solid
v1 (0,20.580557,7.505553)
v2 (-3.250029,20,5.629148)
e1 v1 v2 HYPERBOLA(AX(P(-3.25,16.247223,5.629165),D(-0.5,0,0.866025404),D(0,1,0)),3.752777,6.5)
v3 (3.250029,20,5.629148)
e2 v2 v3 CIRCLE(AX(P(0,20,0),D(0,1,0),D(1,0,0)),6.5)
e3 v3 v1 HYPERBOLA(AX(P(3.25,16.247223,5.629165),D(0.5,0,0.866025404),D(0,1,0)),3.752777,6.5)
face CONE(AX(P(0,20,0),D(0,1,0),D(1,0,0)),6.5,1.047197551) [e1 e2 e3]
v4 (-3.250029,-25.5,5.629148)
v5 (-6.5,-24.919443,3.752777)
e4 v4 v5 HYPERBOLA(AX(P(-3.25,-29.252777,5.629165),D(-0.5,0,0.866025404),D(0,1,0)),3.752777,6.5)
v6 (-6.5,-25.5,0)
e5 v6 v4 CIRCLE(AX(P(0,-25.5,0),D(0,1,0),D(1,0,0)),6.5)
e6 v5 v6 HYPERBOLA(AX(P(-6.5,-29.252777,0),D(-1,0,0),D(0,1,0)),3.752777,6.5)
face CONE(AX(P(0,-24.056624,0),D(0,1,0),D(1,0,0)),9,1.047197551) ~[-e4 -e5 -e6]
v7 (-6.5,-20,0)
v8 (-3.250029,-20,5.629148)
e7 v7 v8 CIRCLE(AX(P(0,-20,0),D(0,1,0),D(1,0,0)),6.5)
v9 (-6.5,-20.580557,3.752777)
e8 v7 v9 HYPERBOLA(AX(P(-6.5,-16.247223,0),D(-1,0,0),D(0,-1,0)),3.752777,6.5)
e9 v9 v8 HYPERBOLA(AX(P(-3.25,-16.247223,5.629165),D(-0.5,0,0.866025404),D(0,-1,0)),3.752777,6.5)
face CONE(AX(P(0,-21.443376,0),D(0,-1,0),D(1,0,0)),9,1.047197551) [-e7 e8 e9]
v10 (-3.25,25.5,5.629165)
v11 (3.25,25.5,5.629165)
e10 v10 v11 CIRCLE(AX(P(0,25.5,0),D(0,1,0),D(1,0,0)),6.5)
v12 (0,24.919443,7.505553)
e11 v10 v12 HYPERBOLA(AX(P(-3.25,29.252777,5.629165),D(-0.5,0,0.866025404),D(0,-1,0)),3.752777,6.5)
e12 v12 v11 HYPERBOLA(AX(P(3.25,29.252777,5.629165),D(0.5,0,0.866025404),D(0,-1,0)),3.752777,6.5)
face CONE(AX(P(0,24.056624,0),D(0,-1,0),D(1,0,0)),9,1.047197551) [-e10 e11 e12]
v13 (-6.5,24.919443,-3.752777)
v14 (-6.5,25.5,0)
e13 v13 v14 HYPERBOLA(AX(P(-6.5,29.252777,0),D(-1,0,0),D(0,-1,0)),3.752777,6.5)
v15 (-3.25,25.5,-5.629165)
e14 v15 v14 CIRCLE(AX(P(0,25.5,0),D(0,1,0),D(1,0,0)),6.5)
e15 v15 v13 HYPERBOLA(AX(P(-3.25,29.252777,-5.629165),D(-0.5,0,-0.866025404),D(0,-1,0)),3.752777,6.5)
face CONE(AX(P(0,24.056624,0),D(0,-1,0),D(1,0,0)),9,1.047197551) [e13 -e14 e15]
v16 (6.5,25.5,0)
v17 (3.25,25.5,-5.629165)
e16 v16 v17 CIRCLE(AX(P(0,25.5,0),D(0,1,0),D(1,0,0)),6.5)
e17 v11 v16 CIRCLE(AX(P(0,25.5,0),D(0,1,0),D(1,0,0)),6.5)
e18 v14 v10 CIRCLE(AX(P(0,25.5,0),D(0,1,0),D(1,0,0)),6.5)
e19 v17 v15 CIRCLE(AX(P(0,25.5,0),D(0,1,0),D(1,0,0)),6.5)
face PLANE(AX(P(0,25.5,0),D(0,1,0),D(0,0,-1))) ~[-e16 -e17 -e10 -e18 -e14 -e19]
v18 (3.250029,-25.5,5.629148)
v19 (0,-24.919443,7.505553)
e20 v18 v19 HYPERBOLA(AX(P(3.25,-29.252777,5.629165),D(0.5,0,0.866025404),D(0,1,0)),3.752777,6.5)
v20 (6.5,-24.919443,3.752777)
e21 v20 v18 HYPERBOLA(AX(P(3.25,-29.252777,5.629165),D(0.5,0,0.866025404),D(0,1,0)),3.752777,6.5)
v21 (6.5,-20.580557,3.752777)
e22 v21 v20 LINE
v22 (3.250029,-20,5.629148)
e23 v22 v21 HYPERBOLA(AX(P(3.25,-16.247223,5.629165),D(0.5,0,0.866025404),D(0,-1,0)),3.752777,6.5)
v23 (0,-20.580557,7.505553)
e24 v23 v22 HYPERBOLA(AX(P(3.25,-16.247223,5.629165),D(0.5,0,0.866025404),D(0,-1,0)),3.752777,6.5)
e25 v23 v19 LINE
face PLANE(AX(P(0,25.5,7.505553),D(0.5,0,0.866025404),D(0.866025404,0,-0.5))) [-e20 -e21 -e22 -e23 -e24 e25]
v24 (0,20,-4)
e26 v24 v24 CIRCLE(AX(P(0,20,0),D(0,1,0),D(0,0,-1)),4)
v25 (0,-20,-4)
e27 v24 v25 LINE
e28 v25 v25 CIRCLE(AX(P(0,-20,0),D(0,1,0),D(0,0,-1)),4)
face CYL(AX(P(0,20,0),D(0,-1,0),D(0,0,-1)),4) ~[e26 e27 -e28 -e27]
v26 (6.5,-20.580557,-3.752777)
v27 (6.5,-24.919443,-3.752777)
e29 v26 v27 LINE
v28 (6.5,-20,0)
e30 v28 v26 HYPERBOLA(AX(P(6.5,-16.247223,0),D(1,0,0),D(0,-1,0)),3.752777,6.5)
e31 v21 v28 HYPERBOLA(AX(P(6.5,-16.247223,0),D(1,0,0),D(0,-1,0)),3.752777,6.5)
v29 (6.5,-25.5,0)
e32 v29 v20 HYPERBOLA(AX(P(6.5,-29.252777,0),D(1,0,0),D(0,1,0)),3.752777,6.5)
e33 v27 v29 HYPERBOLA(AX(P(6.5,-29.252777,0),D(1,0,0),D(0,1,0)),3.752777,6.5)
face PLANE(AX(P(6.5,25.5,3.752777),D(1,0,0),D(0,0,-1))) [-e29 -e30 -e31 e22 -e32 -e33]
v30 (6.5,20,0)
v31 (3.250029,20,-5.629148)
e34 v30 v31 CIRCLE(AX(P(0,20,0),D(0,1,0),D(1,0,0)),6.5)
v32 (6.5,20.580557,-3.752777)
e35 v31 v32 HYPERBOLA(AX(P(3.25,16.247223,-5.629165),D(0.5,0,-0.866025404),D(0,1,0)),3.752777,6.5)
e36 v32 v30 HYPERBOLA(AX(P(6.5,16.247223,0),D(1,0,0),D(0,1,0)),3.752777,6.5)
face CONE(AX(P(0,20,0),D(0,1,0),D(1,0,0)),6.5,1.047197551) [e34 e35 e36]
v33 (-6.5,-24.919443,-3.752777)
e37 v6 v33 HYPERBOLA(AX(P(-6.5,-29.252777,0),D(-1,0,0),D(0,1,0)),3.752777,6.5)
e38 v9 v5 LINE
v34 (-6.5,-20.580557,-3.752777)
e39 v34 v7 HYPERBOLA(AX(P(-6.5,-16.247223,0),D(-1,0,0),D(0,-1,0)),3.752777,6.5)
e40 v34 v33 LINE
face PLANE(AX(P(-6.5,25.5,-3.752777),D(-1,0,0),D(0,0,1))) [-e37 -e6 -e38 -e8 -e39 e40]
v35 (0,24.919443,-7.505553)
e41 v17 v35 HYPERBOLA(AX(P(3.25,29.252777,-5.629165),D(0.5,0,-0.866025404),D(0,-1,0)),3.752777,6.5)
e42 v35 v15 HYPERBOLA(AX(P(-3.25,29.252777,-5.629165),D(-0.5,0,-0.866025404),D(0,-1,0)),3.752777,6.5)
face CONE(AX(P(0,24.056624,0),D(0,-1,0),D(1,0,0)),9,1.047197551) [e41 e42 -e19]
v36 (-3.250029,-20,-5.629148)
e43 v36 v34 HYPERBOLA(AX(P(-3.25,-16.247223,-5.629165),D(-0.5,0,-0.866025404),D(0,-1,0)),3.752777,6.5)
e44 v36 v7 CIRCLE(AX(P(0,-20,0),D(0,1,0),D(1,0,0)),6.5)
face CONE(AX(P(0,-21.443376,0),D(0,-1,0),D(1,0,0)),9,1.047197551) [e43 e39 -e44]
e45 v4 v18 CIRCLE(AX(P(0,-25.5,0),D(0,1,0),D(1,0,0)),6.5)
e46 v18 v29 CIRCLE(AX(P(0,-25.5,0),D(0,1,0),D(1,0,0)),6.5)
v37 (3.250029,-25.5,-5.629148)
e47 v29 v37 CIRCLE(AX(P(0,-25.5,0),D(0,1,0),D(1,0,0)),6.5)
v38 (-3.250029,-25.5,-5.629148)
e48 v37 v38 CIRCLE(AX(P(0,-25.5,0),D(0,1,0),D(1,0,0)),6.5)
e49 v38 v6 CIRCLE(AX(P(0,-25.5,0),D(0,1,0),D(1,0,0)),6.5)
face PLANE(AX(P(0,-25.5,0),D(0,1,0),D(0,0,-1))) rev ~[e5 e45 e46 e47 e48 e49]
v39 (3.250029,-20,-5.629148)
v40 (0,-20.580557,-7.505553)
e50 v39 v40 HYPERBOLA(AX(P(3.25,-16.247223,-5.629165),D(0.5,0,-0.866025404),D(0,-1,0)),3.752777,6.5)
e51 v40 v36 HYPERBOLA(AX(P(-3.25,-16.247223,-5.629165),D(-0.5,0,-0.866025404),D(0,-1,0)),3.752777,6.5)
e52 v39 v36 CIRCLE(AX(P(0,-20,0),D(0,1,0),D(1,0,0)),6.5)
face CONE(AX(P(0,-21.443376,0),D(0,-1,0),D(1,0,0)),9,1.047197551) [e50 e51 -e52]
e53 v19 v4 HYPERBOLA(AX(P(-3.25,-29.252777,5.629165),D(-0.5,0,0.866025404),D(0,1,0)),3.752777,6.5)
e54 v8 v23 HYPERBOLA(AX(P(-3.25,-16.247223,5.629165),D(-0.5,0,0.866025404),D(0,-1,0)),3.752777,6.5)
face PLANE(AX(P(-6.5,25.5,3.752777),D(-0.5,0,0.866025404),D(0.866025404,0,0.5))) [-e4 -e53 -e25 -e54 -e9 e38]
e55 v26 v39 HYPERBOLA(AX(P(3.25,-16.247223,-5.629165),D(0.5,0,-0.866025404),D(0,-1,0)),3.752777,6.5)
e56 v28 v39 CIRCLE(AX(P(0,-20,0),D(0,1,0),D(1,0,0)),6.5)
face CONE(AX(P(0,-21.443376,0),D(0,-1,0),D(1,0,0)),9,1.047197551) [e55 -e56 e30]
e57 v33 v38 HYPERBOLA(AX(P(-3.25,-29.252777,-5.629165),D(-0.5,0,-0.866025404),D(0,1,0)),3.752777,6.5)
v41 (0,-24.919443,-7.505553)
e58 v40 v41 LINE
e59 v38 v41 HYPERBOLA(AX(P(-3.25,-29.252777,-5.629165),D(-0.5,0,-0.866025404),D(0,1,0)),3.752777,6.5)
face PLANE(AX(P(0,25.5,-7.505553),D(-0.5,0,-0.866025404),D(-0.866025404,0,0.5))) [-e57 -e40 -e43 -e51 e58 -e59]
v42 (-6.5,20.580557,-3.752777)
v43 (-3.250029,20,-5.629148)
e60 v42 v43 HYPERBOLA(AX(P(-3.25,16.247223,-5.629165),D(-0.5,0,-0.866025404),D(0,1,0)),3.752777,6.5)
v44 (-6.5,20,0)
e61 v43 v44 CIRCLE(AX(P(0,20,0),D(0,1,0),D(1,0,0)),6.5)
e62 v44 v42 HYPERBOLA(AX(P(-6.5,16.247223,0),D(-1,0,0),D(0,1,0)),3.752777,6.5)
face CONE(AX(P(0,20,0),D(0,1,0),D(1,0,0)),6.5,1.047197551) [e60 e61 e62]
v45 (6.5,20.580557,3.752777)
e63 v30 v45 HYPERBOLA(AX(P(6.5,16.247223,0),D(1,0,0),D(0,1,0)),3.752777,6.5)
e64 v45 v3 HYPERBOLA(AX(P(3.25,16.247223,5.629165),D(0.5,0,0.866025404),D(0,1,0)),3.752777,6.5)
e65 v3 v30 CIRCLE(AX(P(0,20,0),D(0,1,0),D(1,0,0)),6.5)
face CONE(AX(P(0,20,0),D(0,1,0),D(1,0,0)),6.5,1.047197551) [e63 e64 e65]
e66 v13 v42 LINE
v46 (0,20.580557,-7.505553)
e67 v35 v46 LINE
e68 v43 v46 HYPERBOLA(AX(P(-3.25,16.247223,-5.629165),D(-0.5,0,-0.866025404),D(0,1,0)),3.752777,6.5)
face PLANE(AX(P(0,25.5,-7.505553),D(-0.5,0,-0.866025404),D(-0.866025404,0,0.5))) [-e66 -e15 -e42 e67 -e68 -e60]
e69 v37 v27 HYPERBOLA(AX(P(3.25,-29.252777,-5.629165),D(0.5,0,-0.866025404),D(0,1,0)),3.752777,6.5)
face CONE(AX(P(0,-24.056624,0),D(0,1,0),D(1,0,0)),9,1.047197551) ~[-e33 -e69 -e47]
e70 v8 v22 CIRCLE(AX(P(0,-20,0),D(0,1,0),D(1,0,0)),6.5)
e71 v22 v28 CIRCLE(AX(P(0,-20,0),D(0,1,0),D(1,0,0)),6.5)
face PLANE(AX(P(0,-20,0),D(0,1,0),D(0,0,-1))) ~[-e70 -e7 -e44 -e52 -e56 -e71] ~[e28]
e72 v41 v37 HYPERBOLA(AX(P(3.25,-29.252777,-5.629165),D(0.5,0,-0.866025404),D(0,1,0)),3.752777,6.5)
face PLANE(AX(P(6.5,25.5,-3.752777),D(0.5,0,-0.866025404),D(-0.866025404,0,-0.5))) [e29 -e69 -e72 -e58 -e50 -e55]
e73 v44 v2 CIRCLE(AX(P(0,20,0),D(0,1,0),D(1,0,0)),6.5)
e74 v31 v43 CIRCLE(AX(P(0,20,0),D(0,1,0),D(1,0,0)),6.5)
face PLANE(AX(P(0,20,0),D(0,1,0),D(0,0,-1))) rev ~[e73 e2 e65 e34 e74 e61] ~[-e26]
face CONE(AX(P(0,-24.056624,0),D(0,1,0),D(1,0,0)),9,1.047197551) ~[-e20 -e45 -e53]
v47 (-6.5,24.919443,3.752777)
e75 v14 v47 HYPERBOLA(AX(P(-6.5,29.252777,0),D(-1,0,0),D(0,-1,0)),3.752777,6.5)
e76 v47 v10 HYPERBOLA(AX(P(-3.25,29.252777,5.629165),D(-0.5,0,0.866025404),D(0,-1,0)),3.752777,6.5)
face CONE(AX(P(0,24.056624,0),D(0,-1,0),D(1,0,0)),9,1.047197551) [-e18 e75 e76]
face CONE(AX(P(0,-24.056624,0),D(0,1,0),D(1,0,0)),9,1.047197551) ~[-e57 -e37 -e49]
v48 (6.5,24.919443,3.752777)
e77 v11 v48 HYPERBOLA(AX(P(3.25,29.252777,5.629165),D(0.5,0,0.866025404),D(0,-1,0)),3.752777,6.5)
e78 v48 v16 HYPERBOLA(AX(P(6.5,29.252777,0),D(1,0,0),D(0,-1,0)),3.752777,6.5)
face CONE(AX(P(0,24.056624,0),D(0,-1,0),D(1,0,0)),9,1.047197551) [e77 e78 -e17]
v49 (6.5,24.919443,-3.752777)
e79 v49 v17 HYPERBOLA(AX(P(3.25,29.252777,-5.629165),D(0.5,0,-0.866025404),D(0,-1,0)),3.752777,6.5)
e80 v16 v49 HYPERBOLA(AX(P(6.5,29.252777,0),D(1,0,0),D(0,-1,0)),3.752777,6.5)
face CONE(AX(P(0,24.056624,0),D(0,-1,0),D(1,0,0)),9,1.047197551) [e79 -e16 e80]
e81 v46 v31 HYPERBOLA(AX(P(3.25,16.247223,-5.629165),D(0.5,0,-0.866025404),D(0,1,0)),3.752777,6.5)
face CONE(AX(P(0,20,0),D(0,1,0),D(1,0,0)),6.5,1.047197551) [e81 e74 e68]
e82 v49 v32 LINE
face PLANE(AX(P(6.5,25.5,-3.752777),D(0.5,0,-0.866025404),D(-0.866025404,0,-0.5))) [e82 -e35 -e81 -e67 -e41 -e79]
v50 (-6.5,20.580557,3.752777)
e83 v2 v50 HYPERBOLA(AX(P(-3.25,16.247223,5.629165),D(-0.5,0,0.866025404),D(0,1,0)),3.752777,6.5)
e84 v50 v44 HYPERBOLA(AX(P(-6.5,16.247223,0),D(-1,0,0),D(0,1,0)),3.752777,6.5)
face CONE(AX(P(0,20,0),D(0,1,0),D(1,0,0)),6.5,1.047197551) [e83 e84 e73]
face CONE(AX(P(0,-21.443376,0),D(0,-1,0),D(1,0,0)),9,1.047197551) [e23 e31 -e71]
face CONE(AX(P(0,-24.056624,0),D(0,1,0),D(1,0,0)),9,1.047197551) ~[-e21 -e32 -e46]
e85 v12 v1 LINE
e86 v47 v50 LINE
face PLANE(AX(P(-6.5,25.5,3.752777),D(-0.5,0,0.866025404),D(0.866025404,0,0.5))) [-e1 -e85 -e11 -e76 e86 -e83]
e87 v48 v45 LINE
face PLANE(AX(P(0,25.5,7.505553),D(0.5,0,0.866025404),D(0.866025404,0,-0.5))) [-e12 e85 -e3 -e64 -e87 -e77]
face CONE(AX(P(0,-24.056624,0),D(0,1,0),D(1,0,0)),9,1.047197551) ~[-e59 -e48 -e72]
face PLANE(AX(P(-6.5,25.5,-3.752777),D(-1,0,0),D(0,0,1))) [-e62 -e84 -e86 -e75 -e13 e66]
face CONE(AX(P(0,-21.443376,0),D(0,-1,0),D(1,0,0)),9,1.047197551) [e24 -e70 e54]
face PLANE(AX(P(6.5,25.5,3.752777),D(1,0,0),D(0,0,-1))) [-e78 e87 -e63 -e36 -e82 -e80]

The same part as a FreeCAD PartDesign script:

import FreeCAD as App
import Part
import Sketcher
Q = App.Units.Quantity

doc = App.newDocument("Part")
params = doc.addObject("Spreadsheet::Sheet", "Params")
for row, (alias, value) in enumerate([
    ("sketch1_width", "10 mm"),
    ("sketch1_width2", "6 mm"),
    ("sketch1_height", "51 mm"),
    ("sketch1_height2", "40 mm"),
    ("revolution_angle", "360 deg"),
    ("sketch2_diameter", "25 mm"),
    ("sketch3_width", "2.5 mm"),
    ("groove_angle", "360 deg"),
], start=1):
    params.set(f"A{row}", alias)
    params.set(f"B{row}", "=" + value)
    params.setAlias(f"B{row}", alias)

body = doc.addObject("PartDesign::Body", "Body")

# Sketch on XY plane
sketch1 = body.newObject("Sketcher::SketchObject", "Sketch")
sketch1.AttachmentSupport = (doc.getObject("XY_Plane"), [""])
sketch1.MapMode = "FlatFace"
sketch1.addGeometry([
    Part.LineSegment(App.Vector(10, 26, 0), App.Vector(0, 26, 0)),  # 0
    Part.LineSegment(App.Vector(0, 26, 0), App.Vector(0, -26, 0)),  # 1
    Part.LineSegment(App.Vector(0, -26, 0), App.Vector(10, -26, 0)),  # 2
    Part.LineSegment(App.Vector(10, -26, 0), App.Vector(10, -20, 0)),  # 3
    Part.LineSegment(App.Vector(10, -20, 0), App.Vector(4, -20, 0)),  # 4
    Part.LineSegment(App.Vector(4, -20, 0), App.Vector(4, 20, 0)),  # 5
    Part.LineSegment(App.Vector(4, 20, 0), App.Vector(10, 20, 0)),  # 6
    Part.LineSegment(App.Vector(10, 20, 0), App.Vector(10, 26, 0)),  # 7
], False)
sketch1.addConstraint([
    Sketcher.Constraint("Coincident", 0, 2, 1, 1),
    Sketcher.Constraint("Coincident", 1, 2, 2, 1),
    Sketcher.Constraint("Coincident", 2, 2, 3, 1),
    Sketcher.Constraint("Coincident", 3, 2, 4, 1),
    Sketcher.Constraint("Coincident", 4, 2, 5, 1),
    Sketcher.Constraint("Coincident", 5, 2, 6, 1),
    Sketcher.Constraint("Coincident", 6, 2, 7, 1),
    Sketcher.Constraint("Coincident", 7, 2, 0, 1),
    Sketcher.Constraint("Horizontal", 0),
    Sketcher.Constraint("Vertical", 1),
    Sketcher.Constraint("Horizontal", 2),
    Sketcher.Constraint("Vertical", 3),
    Sketcher.Constraint("Horizontal", 4),
    Sketcher.Constraint("Vertical", 5),
    Sketcher.Constraint("Horizontal", 6),
    Sketcher.Constraint("Vertical", 7),
    Sketcher.Constraint("Symmetric", 0, 2, 1, 2, -1, 1),
    Sketcher.Constraint("Symmetric", 3, 2, 6, 2, -1),
    Sketcher.Constraint("DistanceX", 0, 2, 0, 1, 10.0),
    Sketcher.Constraint("DistanceX", 4, 2, 4, 1, 6.0),
    Sketcher.Constraint("DistanceY", 1, 2, 1, 1, 51.0),
    Sketcher.Constraint("DistanceY", 5, 1, 5, 2, 40.0),
])
sketch1.setExpression("Constraints[18]", "Params.sketch1_width")
sketch1.setExpression("Constraints[19]", "Params.sketch1_width2")
sketch1.setExpression("Constraints[20]", "Params.sketch1_height")
sketch1.setExpression("Constraints[21]", "Params.sketch1_height2")
revolution = body.newObject("PartDesign::Revolution", "Revolution")
revolution.Profile = sketch1
revolution.ReferenceAxis = (sketch1, ["V_Axis"])
revolution.setExpression("Angle", "Params.revolution_angle")

# Sketch on XZ plane
sketch2 = body.newObject("Sketcher::SketchObject", "Sketch001")
sketch2.AttachmentSupport = (doc.getObject("XZ_Plane"), [""])
sketch2.MapMode = "FlatFace"
sketch2.AttachmentOffset = App.Placement(App.Vector(0, 0, -25.5), App.Rotation())
sketch2.addGeometry([
    Part.Circle(App.Vector(0, 0, 0), App.Vector(0, 0, 1), 12),  # 0
    Part.LineSegment(App.Vector(-6, -4, 0), App.Vector(0, -8, 0)),  # 1
    Part.LineSegment(App.Vector(0, -8, 0), App.Vector(6, -4, 0)),  # 2
    Part.LineSegment(App.Vector(6, -4, 0), App.Vector(6, 4, 0)),  # 3
    Part.LineSegment(App.Vector(6, 4, 0), App.Vector(0, 8, 0)),  # 4
    Part.LineSegment(App.Vector(0, 8, 0), App.Vector(-6, 4, 0)),  # 5
    Part.LineSegment(App.Vector(-6, 4, 0), App.Vector(-6, -4, 0)),  # 6
], False)
sketch2.addConstraint([
    Sketcher.Constraint("Coincident", 1, 2, 2, 1),
    Sketcher.Constraint("Coincident", 2, 2, 3, 1),
    Sketcher.Constraint("Coincident", 3, 2, 4, 1),
    Sketcher.Constraint("Coincident", 4, 2, 5, 1),
    Sketcher.Constraint("Coincident", 5, 2, 6, 1),
    Sketcher.Constraint("Coincident", 6, 2, 1, 1),
    Sketcher.Constraint("Vertical", 3),
    Sketcher.Constraint("Vertical", 6),
    Sketcher.Constraint("Coincident", 0, 3, -1, 1),
    Sketcher.Constraint("Symmetric", 1, 2, 4, 2, -1, 1),
    Sketcher.Constraint("Symmetric", 2, 2, 5, 2, -1, 1),
    Sketcher.Constraint("PointOnObject", 1, 2, -2),
    Sketcher.Constraint("Parallel", 1, 4),
    Sketcher.Constraint("Horizontal", 3, 2, 5, 2),
    Sketcher.Constraint("Diameter", 0, 25.0),
    Sketcher.Constraint("Angle", 1, Q("-30 deg")),
    Sketcher.Constraint("DistanceX", 5, 2, 3, 2, 13.0),
    Sketcher.Constraint("DistanceY", 3, 1, 3, 2, 7.505554),
])
sketch2.setExpression("Constraints[14]", "Params.sketch2_diameter")
pocket1 = body.newObject("PartDesign::Pocket", "Pocket")
pocket1.Profile = sketch2
pocket1.Type = "ThroughAll"
pocket1.Reversed = True

# Sketch on XY plane
sketch3 = body.newObject("Sketcher::SketchObject", "Sketch002")
sketch3.AttachmentSupport = (doc.getObject("XY_Plane"), [""])
sketch3.MapMode = "FlatFace"
sketch3.addGeometry([
    Part.LineSegment(App.Vector(9, 25.5, 0), App.Vector(6.5, 25.5, 0)),  # 0
    Part.LineSegment(App.Vector(6.5, 25.5, 0), App.Vector(9, 24.1, 0)),  # 1
    Part.LineSegment(App.Vector(9, 24.1, 0), App.Vector(9, 25.5, 0)),  # 2
    Part.LineSegment(App.Vector(9, 20, 0), App.Vector(9, 21.4, 0)),  # 3
    Part.LineSegment(App.Vector(9, 21.4, 0), App.Vector(6.5, 20, 0)),  # 4
    Part.LineSegment(App.Vector(6.5, 20, 0), App.Vector(9, 20, 0)),  # 5
    Part.LineSegment(App.Vector(9, -20, 0), App.Vector(6.5, -20, 0)),  # 6
    Part.LineSegment(App.Vector(6.5, -20, 0), App.Vector(9, -21.4, 0)),  # 7
    Part.LineSegment(App.Vector(9, -21.4, 0), App.Vector(9, -20, 0)),  # 8
    Part.LineSegment(App.Vector(6.5, -25.5, 0), App.Vector(9, -25.5, 0)),  # 9
    Part.LineSegment(App.Vector(9, -25.5, 0), App.Vector(9, -24.1, 0)),  # 10
    Part.LineSegment(App.Vector(9, -24.1, 0), App.Vector(6.5, -25.5, 0)),  # 11
], False)
sketch3.addConstraint([
    Sketcher.Constraint("Coincident", 0, 2, 1, 1),
    Sketcher.Constraint("Coincident", 1, 2, 2, 1),
    Sketcher.Constraint("Coincident", 2, 2, 0, 1),
    Sketcher.Constraint("Coincident", 3, 2, 4, 1),
    Sketcher.Constraint("Coincident", 4, 2, 5, 1),
    Sketcher.Constraint("Coincident", 5, 2, 3, 1),
    Sketcher.Constraint("Coincident", 6, 2, 7, 1),
    Sketcher.Constraint("Coincident", 7, 2, 8, 1),
    Sketcher.Constraint("Coincident", 8, 2, 6, 1),
    Sketcher.Constraint("Coincident", 9, 2, 10, 1),
    Sketcher.Constraint("Coincident", 10, 2, 11, 1),
    Sketcher.Constraint("Coincident", 11, 2, 9, 1),
    Sketcher.Constraint("Horizontal", 0),
    Sketcher.Constraint("Vertical", 2),
    Sketcher.Constraint("Vertical", 3),
    Sketcher.Constraint("Horizontal", 5),
    Sketcher.Constraint("Horizontal", 6),
    Sketcher.Constraint("Vertical", 8),
    Sketcher.Constraint("Horizontal", 9),
    Sketcher.Constraint("Vertical", 10),
    Sketcher.Constraint("Symmetric", 4, 2, 6, 2, -1),
    Sketcher.Constraint("Symmetric", 3, 2, 7, 2, -1),
    Sketcher.Constraint("Symmetric", 2, 2, 9, 2, -1),
    Sketcher.Constraint("Parallel", 1, 7),
    Sketcher.Constraint("Parallel", 4, 11),
    Sketcher.Constraint("Vertical", 2, 2, 3, 2),
    Sketcher.Constraint("Vertical", 0, 2, 4, 2),
    Sketcher.Constraint("Vertical", 6, 2, 11, 2),
    Sketcher.Constraint("Angle", 1, Q("-30 deg")),
    Sketcher.Constraint("DistanceX", 0, 2, 0, 1, 2.5),
    Sketcher.Constraint("DistanceX", -1, 1, 1, 2, 9.0),
    Sketcher.Constraint("DistanceY", -1, 1, 4, 2, 20.0),
    Sketcher.Constraint("DistanceY", -1, 1, 0, 2, 25.5),
])
sketch3.setExpression("Constraints[29]", "Params.sketch3_width")
groove = body.newObject("PartDesign::Groove", "Groove")
groove.Profile = sketch3
groove.ReferenceAxis = (sketch3, ["V_Axis"])
groove.setExpression("Angle", "Params.groove_angle")

doc.recompute()
